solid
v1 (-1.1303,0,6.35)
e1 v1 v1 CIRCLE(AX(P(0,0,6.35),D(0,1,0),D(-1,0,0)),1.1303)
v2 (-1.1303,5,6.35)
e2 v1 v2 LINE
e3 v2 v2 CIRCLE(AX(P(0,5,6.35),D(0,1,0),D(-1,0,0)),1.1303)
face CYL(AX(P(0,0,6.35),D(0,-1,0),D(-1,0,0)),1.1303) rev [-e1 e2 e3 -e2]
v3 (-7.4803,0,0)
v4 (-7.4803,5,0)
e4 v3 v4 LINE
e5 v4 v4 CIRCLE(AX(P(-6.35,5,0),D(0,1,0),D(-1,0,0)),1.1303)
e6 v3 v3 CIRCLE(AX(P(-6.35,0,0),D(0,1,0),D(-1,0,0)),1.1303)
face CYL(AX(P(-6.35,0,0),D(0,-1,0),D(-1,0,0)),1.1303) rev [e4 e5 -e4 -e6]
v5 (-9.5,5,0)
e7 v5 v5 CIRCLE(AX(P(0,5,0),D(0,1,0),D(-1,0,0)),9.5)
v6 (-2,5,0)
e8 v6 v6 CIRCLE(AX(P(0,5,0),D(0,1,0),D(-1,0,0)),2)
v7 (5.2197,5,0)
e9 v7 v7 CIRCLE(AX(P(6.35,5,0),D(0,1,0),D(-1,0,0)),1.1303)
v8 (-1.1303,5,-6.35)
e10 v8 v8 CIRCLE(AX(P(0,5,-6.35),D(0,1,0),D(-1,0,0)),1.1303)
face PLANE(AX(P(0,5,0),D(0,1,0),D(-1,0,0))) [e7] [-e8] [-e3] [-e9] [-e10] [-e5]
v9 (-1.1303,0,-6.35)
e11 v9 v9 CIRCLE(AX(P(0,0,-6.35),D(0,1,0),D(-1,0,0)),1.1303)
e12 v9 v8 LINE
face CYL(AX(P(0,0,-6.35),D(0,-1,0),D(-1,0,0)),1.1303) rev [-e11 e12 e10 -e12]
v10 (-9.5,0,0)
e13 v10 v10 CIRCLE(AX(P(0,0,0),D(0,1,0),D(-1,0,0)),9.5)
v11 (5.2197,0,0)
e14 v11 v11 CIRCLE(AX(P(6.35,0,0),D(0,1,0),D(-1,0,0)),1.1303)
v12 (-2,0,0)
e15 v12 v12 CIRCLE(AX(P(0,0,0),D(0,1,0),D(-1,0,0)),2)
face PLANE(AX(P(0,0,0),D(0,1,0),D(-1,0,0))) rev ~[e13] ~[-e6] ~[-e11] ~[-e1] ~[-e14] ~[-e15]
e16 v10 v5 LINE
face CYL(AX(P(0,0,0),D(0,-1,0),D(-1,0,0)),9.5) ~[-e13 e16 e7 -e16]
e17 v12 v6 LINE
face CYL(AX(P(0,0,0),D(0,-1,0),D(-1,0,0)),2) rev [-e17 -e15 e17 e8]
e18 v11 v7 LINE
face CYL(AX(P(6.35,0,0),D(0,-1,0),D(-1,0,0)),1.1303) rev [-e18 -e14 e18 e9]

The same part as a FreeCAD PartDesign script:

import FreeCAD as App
import Part
import Sketcher
Q = App.Units.Quantity

doc = App.newDocument("Part")
params = doc.addObject("Spreadsheet::Sheet", "Params")
for row, (alias, value) in enumerate([
    ("sketch1_diameter", "19 mm"),
    ("sketch1_diameter2", "4 mm"),
    ("pad1_length", "5 mm"),
], start=1):
    params.set(f"A{row}", alias)
    params.set(f"B{row}", "=" + value)
    params.setAlias(f"B{row}", alias)

body = doc.addObject("PartDesign::Body", "Body")

# Sketch on XZ plane
sketch1 = doc.addObject("Sketcher::SketchObject", "Sketch")
body.addObject(sketch1)
sketch1.AttachmentSupport = (doc.XZ_Plane, [""])
sketch1.MapMode = "FlatFace"
sketch1.addGeometry(Part.Circle(App.Vector(0, 0, 0), App.Vector(0, 0, 1), 9.5), False)
sketch1.addGeometry(Part.Circle(App.Vector(0, -6.3, 0), App.Vector(0, 0, 1), 1.1), False)
sketch1.addGeometry(Part.Circle(App.Vector(6.3, 0, 0), App.Vector(0, 0, 1), 1.1), False)
sketch1.addGeometry(Part.Circle(App.Vector(0, 0, 0), App.Vector(0, 0, 1), 2), False)
sketch1.addGeometry(Part.Circle(App.Vector(-6.3, 0, 0), App.Vector(0, 0, 1), 1.1), False)
sketch1.addGeometry(Part.Circle(App.Vector(0, 6.3, 0), App.Vector(0, 0, 1), 1.1), False)
sketch1.addConstraint(Sketcher.Constraint("Coincident", 0, 3, -1, 1))
sketch1.addConstraint(Sketcher.Constraint("Coincident", 3, 3, -1, 1))
sketch1.addConstraint(Sketcher.Constraint("Equal", 1, 2))
sketch1.addConstraint(Sketcher.Constraint("Equal", 2, 4))
sketch1.addConstraint(Sketcher.Constraint("Equal", 4, 5))
sketch1.addConstraint(Sketcher.Constraint("Symmetric", 2, 3, 4, 3, -1, 1))
sketch1.addConstraint(Sketcher.Constraint("Symmetric", 1, 3, 5, 3, -1, 1))
sketch1.addConstraint(Sketcher.Constraint("PointOnObject", 1, 3, -2))
sketch1.addConstraint(Sketcher.Constraint("PointOnObject", 2, 3, -1))
sketch1.addConstraint(Sketcher.Constraint("Diameter", 0, Q("19 mm")))
sketch1.addConstraint(Sketcher.Constraint("Diameter", 3, Q("4 mm")))
sketch1.addConstraint(Sketcher.Constraint("Diameter", 1, Q("2.2606 mm")))
sketch1.addConstraint(Sketcher.Constraint("DistanceY", 1, 3, -1, 1, Q("6.35 mm")))
sketch1.addConstraint(Sketcher.Constraint("DistanceX", -1, 1, 2, 3, Q("6.35 mm")))
sketch1.setExpression("Constraints[9]", "Params.sketch1_diameter")
sketch1.setExpression("Constraints[10]", "Params.sketch1_diameter2")
pad1 = doc.addObject("PartDesign::Pad", "Pad")
body.addObject(pad1)
pad1.Profile = sketch1
pad1.setExpression("Length", "Params.pad1_length")
pad1.Reversed = True

doc.recompute()
